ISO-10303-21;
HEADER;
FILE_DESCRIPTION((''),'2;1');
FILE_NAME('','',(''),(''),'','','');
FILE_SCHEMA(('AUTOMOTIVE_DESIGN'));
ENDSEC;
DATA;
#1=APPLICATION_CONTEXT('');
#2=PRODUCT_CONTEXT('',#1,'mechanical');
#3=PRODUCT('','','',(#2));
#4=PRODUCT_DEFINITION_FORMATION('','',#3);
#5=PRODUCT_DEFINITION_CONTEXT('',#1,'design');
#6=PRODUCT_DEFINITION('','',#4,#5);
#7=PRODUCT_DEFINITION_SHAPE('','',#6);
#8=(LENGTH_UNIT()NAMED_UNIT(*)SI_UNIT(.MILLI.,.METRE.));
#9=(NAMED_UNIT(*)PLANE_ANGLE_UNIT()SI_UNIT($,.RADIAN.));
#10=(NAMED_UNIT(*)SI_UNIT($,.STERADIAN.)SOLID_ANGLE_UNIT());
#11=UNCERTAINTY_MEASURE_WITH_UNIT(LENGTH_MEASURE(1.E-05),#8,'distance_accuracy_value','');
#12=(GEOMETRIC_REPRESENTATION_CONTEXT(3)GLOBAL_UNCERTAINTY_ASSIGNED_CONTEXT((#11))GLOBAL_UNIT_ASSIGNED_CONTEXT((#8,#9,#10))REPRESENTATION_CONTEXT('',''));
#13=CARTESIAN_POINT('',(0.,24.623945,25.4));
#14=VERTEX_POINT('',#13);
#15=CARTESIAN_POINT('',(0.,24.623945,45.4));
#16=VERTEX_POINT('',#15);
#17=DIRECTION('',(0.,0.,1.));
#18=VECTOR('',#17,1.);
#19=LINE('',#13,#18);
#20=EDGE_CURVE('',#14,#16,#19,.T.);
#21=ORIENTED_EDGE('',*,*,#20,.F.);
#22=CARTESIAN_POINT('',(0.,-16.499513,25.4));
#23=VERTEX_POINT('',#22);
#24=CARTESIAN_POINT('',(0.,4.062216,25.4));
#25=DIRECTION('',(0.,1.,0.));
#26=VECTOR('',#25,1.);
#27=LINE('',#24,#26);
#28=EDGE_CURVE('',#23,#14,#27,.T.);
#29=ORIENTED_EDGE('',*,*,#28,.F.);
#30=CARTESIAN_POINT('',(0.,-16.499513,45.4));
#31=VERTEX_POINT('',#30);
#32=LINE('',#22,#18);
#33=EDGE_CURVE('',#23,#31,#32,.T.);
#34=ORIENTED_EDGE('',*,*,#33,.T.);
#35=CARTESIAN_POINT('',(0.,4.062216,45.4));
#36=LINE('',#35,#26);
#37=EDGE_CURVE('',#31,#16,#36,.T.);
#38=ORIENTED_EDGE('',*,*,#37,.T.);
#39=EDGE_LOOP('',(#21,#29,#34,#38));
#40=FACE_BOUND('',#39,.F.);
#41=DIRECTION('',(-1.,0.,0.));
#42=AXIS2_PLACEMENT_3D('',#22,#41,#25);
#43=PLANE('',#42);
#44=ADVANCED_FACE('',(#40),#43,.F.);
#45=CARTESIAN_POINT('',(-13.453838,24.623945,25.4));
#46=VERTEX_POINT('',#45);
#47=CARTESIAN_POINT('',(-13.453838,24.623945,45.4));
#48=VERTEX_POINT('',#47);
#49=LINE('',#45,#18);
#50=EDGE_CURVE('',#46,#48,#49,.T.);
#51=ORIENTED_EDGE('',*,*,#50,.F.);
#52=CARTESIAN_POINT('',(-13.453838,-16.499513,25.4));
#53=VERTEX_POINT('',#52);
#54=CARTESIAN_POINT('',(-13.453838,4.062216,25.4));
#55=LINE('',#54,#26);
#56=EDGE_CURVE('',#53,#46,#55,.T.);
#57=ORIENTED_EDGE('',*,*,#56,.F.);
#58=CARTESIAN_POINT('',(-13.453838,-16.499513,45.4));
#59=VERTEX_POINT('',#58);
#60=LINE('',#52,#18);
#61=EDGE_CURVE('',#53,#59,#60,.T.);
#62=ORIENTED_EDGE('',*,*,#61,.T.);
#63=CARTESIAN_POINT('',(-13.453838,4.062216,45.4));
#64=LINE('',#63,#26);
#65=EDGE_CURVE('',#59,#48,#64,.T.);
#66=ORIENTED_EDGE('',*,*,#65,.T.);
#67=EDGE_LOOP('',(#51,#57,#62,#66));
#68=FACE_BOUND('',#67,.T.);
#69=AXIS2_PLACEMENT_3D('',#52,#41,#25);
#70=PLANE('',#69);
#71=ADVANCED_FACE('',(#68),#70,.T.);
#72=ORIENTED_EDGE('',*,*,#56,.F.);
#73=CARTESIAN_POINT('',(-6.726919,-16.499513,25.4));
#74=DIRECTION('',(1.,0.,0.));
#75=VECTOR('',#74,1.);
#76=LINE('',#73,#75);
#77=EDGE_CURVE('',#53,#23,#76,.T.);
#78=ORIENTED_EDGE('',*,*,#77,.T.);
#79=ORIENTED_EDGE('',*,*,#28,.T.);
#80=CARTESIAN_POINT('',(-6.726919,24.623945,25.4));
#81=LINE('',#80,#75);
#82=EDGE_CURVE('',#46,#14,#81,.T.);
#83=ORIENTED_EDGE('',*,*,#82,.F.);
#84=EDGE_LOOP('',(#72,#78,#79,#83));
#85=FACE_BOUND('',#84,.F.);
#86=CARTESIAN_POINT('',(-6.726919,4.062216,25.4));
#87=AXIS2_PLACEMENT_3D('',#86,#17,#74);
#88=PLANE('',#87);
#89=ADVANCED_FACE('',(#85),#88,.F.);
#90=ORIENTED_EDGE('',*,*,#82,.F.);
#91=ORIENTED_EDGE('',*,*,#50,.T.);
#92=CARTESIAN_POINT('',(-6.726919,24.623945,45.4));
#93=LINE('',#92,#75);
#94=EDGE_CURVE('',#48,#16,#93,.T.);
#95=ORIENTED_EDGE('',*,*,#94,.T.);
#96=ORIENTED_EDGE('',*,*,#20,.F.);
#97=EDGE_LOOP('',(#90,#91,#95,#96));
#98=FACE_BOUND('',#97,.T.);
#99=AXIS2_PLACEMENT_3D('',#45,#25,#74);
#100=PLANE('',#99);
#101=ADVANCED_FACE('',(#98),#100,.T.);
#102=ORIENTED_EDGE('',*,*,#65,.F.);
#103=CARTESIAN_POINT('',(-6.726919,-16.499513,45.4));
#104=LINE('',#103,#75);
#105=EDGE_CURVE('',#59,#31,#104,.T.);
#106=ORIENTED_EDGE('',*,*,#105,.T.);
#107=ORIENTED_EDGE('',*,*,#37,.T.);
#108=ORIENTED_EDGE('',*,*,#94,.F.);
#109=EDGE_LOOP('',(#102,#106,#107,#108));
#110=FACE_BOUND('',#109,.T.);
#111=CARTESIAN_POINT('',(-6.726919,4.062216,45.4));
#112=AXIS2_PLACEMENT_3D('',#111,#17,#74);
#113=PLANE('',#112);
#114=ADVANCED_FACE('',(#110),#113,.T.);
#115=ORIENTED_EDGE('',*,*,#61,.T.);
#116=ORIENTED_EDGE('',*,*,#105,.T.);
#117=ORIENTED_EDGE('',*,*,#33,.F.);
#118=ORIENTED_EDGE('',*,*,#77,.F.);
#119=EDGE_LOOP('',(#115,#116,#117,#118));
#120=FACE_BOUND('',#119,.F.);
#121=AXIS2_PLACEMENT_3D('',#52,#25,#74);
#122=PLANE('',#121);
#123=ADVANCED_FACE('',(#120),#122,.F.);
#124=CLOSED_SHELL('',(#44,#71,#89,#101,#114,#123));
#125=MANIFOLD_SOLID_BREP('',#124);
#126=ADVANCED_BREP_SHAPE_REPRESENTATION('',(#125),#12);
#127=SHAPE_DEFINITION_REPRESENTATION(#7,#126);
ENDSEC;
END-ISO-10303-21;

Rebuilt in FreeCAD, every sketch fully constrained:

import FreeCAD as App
import Part
import Sketcher

V = App.Vector


def add_polygon(sketch, points):
    """Adds a closed chain of lines whose ends are joined by coincident constraints."""
    first, n = sketch.GeometryCount, len(points)
    for a, b in zip(points, points[1:] + points[:1]):
        sketch.addGeometry(Part.LineSegment(App.Vector(*a, 0), App.Vector(*b, 0)), False)
    for i in range(n):
        sketch.addConstraint(Sketcher.Constraint("Coincident", first + i, 2, first + (i + 1) % n, 1))

doc = App.newDocument("Part")
body = doc.addObject("PartDesign::Body", "Body")

# Sketch on XY plane
sketch1 = doc.addObject("Sketcher::SketchObject", "Sketch")
body.addObject(sketch1)
sketch1.AttachmentSupport = (doc.XY_Plane, [""])
sketch1.MapMode = "FlatFace"
sketch1.AttachmentOffset = App.Placement(V(0, 0, 25.4), App.Rotation())
add_polygon(sketch1, [(-13, 25), (-13, -16), (0, -16), (0, 25)])  # lines 0-3
sketch1.addConstraint([
    Sketcher.Constraint("Vertical", 0),
    Sketcher.Constraint("Horizontal", 1),
    Sketcher.Constraint("Vertical", 2),
    Sketcher.Constraint("Horizontal", 3),
    Sketcher.Constraint("PointOnObject", 1, 2, -2),
    Sketcher.Constraint("DistanceX", 1, 1, 1, 2, 13.453837),
    Sketcher.Constraint("DistanceY", 0, 2, 0, 1, 41.123457),
    Sketcher.Constraint("DistanceY", 0, 2, -1, 1, 16.499513),
])
pad1 = doc.addObject("PartDesign::Pad", "Pad")
body.addObject(pad1)
pad1.Profile = sketch1
pad1.Length = 20

doc.recompute()
